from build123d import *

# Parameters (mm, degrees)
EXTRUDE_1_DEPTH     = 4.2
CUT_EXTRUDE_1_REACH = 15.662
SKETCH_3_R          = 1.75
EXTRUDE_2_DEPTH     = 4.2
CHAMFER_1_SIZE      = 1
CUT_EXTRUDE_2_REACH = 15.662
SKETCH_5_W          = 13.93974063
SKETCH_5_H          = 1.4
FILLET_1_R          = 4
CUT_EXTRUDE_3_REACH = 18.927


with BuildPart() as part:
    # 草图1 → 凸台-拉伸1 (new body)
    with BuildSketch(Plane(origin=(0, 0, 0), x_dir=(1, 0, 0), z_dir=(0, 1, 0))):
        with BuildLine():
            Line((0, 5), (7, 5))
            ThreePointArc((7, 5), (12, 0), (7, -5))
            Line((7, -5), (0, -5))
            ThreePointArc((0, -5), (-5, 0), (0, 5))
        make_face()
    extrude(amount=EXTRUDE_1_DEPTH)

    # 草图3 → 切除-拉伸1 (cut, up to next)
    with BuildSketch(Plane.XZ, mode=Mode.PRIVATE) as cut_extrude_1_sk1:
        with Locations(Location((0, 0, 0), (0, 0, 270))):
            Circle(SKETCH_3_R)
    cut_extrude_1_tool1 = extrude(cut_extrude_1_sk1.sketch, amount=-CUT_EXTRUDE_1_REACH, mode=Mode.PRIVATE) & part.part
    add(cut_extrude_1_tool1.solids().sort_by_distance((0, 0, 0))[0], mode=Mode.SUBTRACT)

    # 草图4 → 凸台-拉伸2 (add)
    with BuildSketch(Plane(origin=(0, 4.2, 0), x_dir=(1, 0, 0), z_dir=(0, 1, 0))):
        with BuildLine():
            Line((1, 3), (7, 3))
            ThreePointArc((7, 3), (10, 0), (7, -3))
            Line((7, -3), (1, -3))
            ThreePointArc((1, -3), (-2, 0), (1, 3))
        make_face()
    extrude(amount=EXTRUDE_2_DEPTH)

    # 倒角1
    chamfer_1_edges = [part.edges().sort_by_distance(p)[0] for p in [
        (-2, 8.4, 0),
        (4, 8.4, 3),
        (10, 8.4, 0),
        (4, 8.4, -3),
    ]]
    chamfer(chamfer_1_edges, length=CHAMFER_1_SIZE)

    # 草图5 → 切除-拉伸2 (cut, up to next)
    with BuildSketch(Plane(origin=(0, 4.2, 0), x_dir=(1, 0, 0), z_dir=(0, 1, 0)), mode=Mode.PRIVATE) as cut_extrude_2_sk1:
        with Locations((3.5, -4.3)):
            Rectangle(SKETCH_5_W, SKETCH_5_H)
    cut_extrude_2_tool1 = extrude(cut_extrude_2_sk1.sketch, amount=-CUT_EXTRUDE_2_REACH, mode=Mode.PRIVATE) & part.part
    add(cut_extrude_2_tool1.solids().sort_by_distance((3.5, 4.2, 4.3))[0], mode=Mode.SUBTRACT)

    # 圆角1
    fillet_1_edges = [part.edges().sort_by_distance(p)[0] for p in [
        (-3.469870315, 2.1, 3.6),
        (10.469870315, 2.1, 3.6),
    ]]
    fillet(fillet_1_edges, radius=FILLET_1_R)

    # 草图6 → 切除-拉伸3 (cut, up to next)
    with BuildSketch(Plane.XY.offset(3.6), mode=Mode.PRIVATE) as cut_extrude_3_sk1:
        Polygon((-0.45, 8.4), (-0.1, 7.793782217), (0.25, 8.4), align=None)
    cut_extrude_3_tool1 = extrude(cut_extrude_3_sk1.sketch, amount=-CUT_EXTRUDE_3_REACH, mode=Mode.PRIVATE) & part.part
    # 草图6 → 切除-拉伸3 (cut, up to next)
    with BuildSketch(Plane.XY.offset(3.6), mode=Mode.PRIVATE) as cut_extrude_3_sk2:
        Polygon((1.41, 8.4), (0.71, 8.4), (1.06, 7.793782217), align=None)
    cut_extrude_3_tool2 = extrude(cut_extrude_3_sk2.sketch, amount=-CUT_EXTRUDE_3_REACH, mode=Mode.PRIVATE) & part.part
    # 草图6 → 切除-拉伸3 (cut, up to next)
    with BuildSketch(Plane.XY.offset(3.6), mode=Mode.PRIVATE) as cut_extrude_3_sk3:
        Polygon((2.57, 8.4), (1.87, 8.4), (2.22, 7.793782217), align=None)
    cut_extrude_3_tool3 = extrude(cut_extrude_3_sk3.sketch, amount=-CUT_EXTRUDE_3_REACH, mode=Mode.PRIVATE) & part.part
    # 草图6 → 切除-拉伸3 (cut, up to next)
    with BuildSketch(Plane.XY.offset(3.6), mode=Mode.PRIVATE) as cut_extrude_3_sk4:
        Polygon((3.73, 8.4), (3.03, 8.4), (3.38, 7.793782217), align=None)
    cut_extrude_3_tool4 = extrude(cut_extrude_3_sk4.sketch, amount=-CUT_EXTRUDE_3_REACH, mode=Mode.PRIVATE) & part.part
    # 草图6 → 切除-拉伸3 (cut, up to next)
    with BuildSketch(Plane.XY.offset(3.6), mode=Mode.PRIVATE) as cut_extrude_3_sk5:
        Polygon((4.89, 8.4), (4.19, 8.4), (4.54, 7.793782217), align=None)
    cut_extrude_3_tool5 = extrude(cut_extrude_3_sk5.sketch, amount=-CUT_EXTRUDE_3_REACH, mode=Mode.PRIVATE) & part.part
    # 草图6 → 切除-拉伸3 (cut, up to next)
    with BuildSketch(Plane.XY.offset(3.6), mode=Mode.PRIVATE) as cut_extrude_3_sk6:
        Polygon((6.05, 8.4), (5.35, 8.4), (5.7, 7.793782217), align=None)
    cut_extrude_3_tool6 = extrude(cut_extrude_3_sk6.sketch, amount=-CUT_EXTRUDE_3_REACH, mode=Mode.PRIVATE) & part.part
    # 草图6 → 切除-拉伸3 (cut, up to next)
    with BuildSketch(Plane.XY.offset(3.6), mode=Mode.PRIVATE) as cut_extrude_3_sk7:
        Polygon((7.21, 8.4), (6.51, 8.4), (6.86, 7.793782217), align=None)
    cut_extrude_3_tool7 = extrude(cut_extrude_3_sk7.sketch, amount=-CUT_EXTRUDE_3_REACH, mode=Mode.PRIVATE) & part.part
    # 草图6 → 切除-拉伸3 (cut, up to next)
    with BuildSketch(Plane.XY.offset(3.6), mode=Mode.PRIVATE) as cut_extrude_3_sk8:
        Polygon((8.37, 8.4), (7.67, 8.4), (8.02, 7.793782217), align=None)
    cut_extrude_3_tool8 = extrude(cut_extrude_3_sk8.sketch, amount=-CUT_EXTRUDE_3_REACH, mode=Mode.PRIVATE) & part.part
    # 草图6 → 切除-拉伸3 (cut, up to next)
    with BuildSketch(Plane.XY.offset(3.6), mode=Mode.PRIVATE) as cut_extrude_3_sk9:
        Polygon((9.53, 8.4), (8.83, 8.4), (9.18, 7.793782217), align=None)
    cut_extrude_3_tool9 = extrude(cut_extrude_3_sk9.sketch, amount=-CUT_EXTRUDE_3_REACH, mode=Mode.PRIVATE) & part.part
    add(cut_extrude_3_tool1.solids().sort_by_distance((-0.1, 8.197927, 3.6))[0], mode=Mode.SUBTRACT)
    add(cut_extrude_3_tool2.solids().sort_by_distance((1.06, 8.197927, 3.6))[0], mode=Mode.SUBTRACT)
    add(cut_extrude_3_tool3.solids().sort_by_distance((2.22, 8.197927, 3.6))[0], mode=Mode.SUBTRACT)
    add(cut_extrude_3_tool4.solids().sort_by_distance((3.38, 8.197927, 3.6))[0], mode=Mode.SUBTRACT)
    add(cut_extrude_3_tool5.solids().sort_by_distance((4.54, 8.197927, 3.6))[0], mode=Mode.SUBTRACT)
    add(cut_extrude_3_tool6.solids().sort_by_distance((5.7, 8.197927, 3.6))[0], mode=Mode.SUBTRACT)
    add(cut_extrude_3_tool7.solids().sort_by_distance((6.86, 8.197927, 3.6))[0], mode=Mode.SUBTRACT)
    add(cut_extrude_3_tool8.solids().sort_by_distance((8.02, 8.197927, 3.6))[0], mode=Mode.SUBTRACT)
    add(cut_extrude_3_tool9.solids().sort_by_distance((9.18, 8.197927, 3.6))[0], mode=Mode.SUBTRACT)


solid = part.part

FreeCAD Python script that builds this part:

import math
import FreeCAD as App
import Part
import Sketcher
Q = App.Units.Quantity


def edges_at(feature, points):
    """Names of the edges that pass closest to the given points."""
    edges = feature.Shape.Edges
    near = lambda p: min(range(len(edges)), key=lambda i: edges[i].distToShape(Part.Vertex(*p))[0])
    return sorted({f"Edge{near(p) + 1}" for p in points})

doc = App.newDocument("Part")
body = doc.addObject("PartDesign::Body", "Body")

# Sketch on XZ plane
sketch1 = body.newObject("Sketcher::SketchObject", "Sketch")
sketch1.AttachmentSupport = (doc.getObject("XZ_Plane"), [""])
sketch1.MapMode = "FlatFace"
sketch1.addGeometry([
    Part.LineSegment(App.Vector(7, -5, 0), App.Vector(0, -5, 0)),
    Part.ArcOfCircle(Part.Circle(App.Vector(0, 0, 0), App.Vector(0, 0, 1), 5), math.radians(90), math.radians(270)),
    Part.LineSegment(App.Vector(0, 5, 0), App.Vector(7, 5, 0)),
    Part.ArcOfCircle(Part.Circle(App.Vector(7, 0, 0), App.Vector(0, 0, 1), 5), math.radians(-90), math.radians(90)),
], False)
sketch1.addConstraint([
    Sketcher.Constraint("Tangent", 0, 2, 1, 2),
    Sketcher.Constraint("Tangent", 1, 1, 2, 1),
    Sketcher.Constraint("Tangent", 2, 2, 3, 2),
    Sketcher.Constraint("Tangent", 3, 1, 0, 1),
    Sketcher.Constraint("Horizontal", 0),
    Sketcher.Constraint("Horizontal", 2),
    Sketcher.Constraint("Coincident", 1, 3, -1, 1),
    Sketcher.Constraint("Radius", 1, Q("5 mm")),
    Sketcher.Constraint("DistanceX", 0, 2, 0, 1, Q("7 mm")),
])
pad1 = body.newObject("PartDesign::Pad", "Pad")
pad1.Profile = sketch1
pad1.Length = 4.2
pad1.Reversed = True

# Sketch on XZ plane
sketch2 = body.newObject("Sketcher::SketchObject", "Sketch001")
sketch2.AttachmentSupport = (doc.getObject("XZ_Plane"), [""])
sketch2.MapMode = "FlatFace"
sketch2.addGeometry(Part.Circle(App.Vector(0, 0, 0), App.Vector(0, 0, 1), 1.8), False)
sketch2.addConstraint([
    Sketcher.Constraint("Coincident", 0, 3, -1, 1),
    Sketcher.Constraint("Diameter", 0, Q("3.5 mm")),
])
pocket1 = body.newObject("PartDesign::Pocket", "Pocket")
pocket1.Profile = sketch2
pocket1.Type = "UpToFirst"

# Sketch on XZ plane
sketch3 = body.newObject("Sketcher::SketchObject", "Sketch002")
sketch3.AttachmentSupport = (doc.getObject("XZ_Plane"), [""])
sketch3.MapMode = "FlatFace"
sketch3.AttachmentOffset = App.Placement(App.Vector(0, 0, -4.2), App.Rotation())
sketch3.addGeometry([
    Part.LineSegment(App.Vector(7, -3, 0), App.Vector(1, -3, 0)),
    Part.ArcOfCircle(Part.Circle(App.Vector(1, 0, 0), App.Vector(0, 0, 1), 3), math.radians(90), math.radians(270)),
    Part.LineSegment(App.Vector(1, 3, 0), App.Vector(7, 3, 0)),
    Part.ArcOfCircle(Part.Circle(App.Vector(7, 0, 0), App.Vector(0, 0, 1), 3), math.radians(-90), math.radians(90)),
], False)
sketch3.addConstraint([
    Sketcher.Constraint("Tangent", 0, 2, 1, 2),
    Sketcher.Constraint("Tangent", 1, 1, 2, 1),
    Sketcher.Constraint("Tangent", 2, 2, 3, 2),
    Sketcher.Constraint("Tangent", 3, 1, 0, 1),
    Sketcher.Constraint("Horizontal", 0),
    Sketcher.Constraint("Horizontal", 2),
    Sketcher.Constraint("PointOnObject", 1, 3, -1),
    Sketcher.Constraint("Radius", 1, Q("3 mm")),
    Sketcher.Constraint("DistanceX", 0, 2, 0, 1, Q("6 mm")),
    Sketcher.Constraint("DistanceX", -1, 1, 1, 3, Q("1 mm")),
])
pad2 = body.newObject("PartDesign::Pad", "Pad001")
pad2.Profile = sketch3
pad2.Length = 4.2
pad2.Reversed = True
doc.recompute()

chamfer = body.newObject("PartDesign::Chamfer", "Chamfer")
chamfer.Base = (pad2, edges_at(pad2, [
    (-2, 8.4, 0),
    (4, 8.4, 3),
    (10, 8.4, 0),
    (4, 8.4, -3),
]))
chamfer.Size = 1

# Sketch on XZ plane
sketch4 = body.newObject("Sketcher::SketchObject", "Sketch003")
sketch4.AttachmentSupport = (doc.getObject("XZ_Plane"), [""])
sketch4.MapMode = "FlatFace"
sketch4.AttachmentOffset = App.Placement(App.Vector(0, 0, -4.2), App.Rotation())
sketch4.addGeometry([
    Part.LineSegment(App.Vector(-3.5, 3.6, 0), App.Vector(-3.5, 5, 0)),
    Part.LineSegment(App.Vector(-3.5, 5, 0), App.Vector(10.5, 5, 0)),
    Part.LineSegment(App.Vector(10.5, 5, 0), App.Vector(10.5, 3.6, 0)),
    Part.LineSegment(App.Vector(10.5, 3.6, 0), App.Vector(-3.5, 3.6, 0)),
], False)
sketch4.addConstraint([
    Sketcher.Constraint("Coincident", 0, 2, 1, 1),
    Sketcher.Constraint("Coincident", 1, 2, 2, 1),
    Sketcher.Constraint("Coincident", 2, 2, 3, 1),
    Sketcher.Constraint("Coincident", 3, 2, 0, 1),
    Sketcher.Constraint("Vertical", 0),
    Sketcher.Constraint("Horizontal", 1),
    Sketcher.Constraint("Vertical", 2),
    Sketcher.Constraint("Horizontal", 3),
    Sketcher.Constraint("DistanceY", 0, 1, 0, 2, Q("1.4 mm")),
    Sketcher.Constraint("DistanceY", -1, 1, 0, 2, Q("5 mm")),
    Sketcher.Constraint("DistanceX", 1, 1, 1, 2, Q("13.939741 mm")),
    Sketcher.Constraint("DistanceX", 0, 2, -1, 1, Q("3.46987 mm")),
])
pocket2 = body.newObject("PartDesign::Pocket", "Pocket001")
pocket2.Profile = sketch4
pocket2.Type = "UpToFirst"
pocket2.Reversed = True
doc.recompute()

fillet = body.newObject("PartDesign::Fillet", "Fillet")
fillet.Base = (pocket2, edges_at(pocket2, [(-3.47, 2.1, 3.6), (10.47, 2.1, 3.6)]))
fillet.Radius = 4

# Sketch on XY plane
sketch5 = body.newObject("Sketcher::SketchObject", "Sketch004")
sketch5.AttachmentSupport = (doc.getObject("XY_Plane"), [""])
sketch5.MapMode = "FlatFace"
sketch5.AttachmentOffset = App.Placement(App.Vector(0, 0, 3.6), App.Rotation())
sketch5.addGeometry([
    Part.LineSegment(App.Vector(-0.5, 8.4, 0), App.Vector(-0.1, 7.8, 0)),
    Part.LineSegment(App.Vector(-0.1, 7.8, 0), App.Vector(0.2, 8.4, 0)),
    Part.LineSegment(App.Vector(0.2, 8.4, 0), App.Vector(-0.5, 8.4, 0)),
], False)
sketch5.addConstraint([
    Sketcher.Constraint("Coincident", 0, 2, 1, 1),
    Sketcher.Constraint("Coincident", 1, 2, 2, 1),
    Sketcher.Constraint("Coincident", 2, 2, 0, 1),
    Sketcher.Constraint("Horizontal", 2),
    Sketcher.Constraint("Equal", 0, 1),
    Sketcher.Constraint("Angle", 0, Q("-60 deg")),
    Sketcher.Constraint("DistanceX", 2, 2, 2, 1, Q("0.7 mm")),
    Sketcher.Constraint("DistanceX", 0, 2, -1, 1, Q("0.1 mm")),
    Sketcher.Constraint("DistanceY", -1, 1, 1, 2, Q("8.4 mm")),
])
pocket3 = body.newObject("PartDesign::Pocket", "Pocket002")
pocket3.Profile = sketch5
pocket3.Length = 5.962704

# Sketch on XY plane
sketch6 = body.newObject("Sketcher::SketchObject", "Sketch005")
sketch6.AttachmentSupport = (doc.getObject("XY_Plane"), [""])
sketch6.MapMode = "FlatFace"
sketch6.AttachmentOffset = App.Placement(App.Vector(0, 0, 3.6), App.Rotation())
sketch6.addGeometry([
    Part.LineSegment(App.Vector(1.4, 8.4, 0), App.Vector(0.7, 8.4, 0)),
    Part.LineSegment(App.Vector(0.7, 8.4, 0), App.Vector(1.1, 7.8, 0)),
    Part.LineSegment(App.Vector(1.1, 7.8, 0), App.Vector(1.4, 8.4, 0)),
], False)
sketch6.addConstraint([
    Sketcher.Constraint("Coincident", 0, 2, 1, 1),
    Sketcher.Constraint("Coincident", 1, 2, 2, 1),
    Sketcher.Constraint("Coincident", 2, 2, 0, 1),
    Sketcher.Constraint("Horizontal", 0),
    Sketcher.Constraint("Equal", 1, 2),
    Sketcher.Constraint("Angle", 1, Q("-60 deg")),
    Sketcher.Constraint("DistanceX", 0, 2, 0, 1, Q("0.7 mm")),
    Sketcher.Constraint("DistanceY", -1, 1, 0, 2, Q("8.4 mm")),
    Sketcher.Constraint("DistanceX", -1, 1, 0, 2, Q("0.71 mm")),
])
pocket4 = body.newObject("PartDesign::Pocket", "Pocket003")
pocket4.Profile = sketch6
pocket4.Length = 6.206218

# Sketch on XY plane
sketch7 = body.newObject("Sketcher::SketchObject", "Sketch006")
sketch7.AttachmentSupport = (doc.getObject("XY_Plane"), [""])
sketch7.MapMode = "FlatFace"
sketch7.AttachmentOffset = App.Placement(App.Vector(0, 0, 3.6), App.Rotation())
sketch7.addGeometry([
    Part.LineSegment(App.Vector(2.6, 8.4, 0), App.Vector(1.9, 8.4, 0)),
    Part.LineSegment(App.Vector(1.9, 8.4, 0), App.Vector(2.2, 7.8, 0)),
    Part.LineSegment(App.Vector(2.2, 7.8, 0), App.Vector(2.6, 8.4, 0)),
], False)
sketch7.addConstraint([
    Sketcher.Constraint("Coincident", 0, 2, 1, 1),
    Sketcher.Constraint("Coincident", 1, 2, 2, 1),
    Sketcher.Constraint("Coincident", 2, 2, 0, 1),
    Sketcher.Constraint("Horizontal", 0),
    Sketcher.Constraint("Equal", 1, 2),
    Sketcher.Constraint("Angle", 1, Q("-60 deg")),
    Sketcher.Constraint("DistanceX", 0, 2, 0, 1, Q("0.7 mm")),
    Sketcher.Constraint("DistanceY", -1, 1, 0, 2, Q("8.4 mm")),
    Sketcher.Constraint("DistanceX", -1, 1, 0, 2, Q("1.87 mm")),
])
pocket5 = body.newObject("PartDesign::Pocket", "Pocket004")
pocket5.Profile = sketch7
pocket5.Length = 6.206218

# Sketch on XY plane
sketch8 = body.newObject("Sketcher::SketchObject", "Sketch007")
sketch8.AttachmentSupport = (doc.getObject("XY_Plane"), [""])
sketch8.MapMode = "FlatFace"
sketch8.AttachmentOffset = App.Placement(App.Vector(0, 0, 3.6), App.Rotation())
sketch8.addGeometry([
    Part.LineSegment(App.Vector(3.7, 8.4, 0), App.Vector(3, 8.4, 0)),
    Part.LineSegment(App.Vector(3, 8.4, 0), App.Vector(3.4, 7.8, 0)),
    Part.LineSegment(App.Vector(3.4, 7.8, 0), App.Vector(3.7, 8.4, 0)),
], False)
sketch8.addConstraint([
    Sketcher.Constraint("Coincident", 0, 2, 1, 1),
    Sketcher.Constraint("Coincident", 1, 2, 2, 1),
    Sketcher.Constraint("Coincident", 2, 2, 0, 1),
    Sketcher.Constraint("Horizontal", 0),
    Sketcher.Constraint("Equal", 1, 2),
    Sketcher.Constraint("Angle", 1, Q("-60 deg")),
    Sketcher.Constraint("DistanceX", 0, 2, 0, 1, Q("0.7 mm")),
    Sketcher.Constraint("DistanceY", -1, 1, 0, 2, Q("8.4 mm")),
    Sketcher.Constraint("DistanceX", -1, 1, 0, 2, Q("3.03 mm")),
])
pocket6 = body.newObject("PartDesign::Pocket", "Pocket005")
pocket6.Profile = sketch8
pocket6.Length = 6.206218

# Sketch on XY plane
sketch9 = body.newObject("Sketcher::SketchObject", "Sketch008")
sketch9.AttachmentSupport = (doc.getObject("XY_Plane"), [""])
sketch9.MapMode = "FlatFace"
sketch9.AttachmentOffset = App.Placement(App.Vector(0, 0, 3.6), App.Rotation())
sketch9.addGeometry([
    Part.LineSegment(App.Vector(4.9, 8.4, 0), App.Vector(4.2, 8.4, 0)),
    Part.LineSegment(App.Vector(4.2, 8.4, 0), App.Vector(4.5, 7.8, 0)),
    Part.LineSegment(App.Vector(4.5, 7.8, 0), App.Vector(4.9, 8.4, 0)),
], False)
sketch9.addConstraint([
    Sketcher.Constraint("Coincident", 0, 2, 1, 1),
    Sketcher.Constraint("Coincident", 1, 2, 2, 1),
    Sketcher.Constraint("Coincident", 2, 2, 0, 1),
    Sketcher.Constraint("Horizontal", 0),
    Sketcher.Constraint("Equal", 1, 2),
    Sketcher.Constraint("Angle", 1, Q("-60 deg")),
    Sketcher.Constraint("DistanceX", 0, 2, 0, 1, Q("0.7 mm")),
    Sketcher.Constraint("DistanceY", -1, 1, 0, 2, Q("8.4 mm")),
    Sketcher.Constraint("DistanceX", -1, 1, 0, 2, Q("4.19 mm")),
])
pocket7 = body.newObject("PartDesign::Pocket", "Pocket006")
pocket7.Profile = sketch9
pocket7.Length = 6.206218

# Sketch on XY plane
sketch10 = body.newObject("Sketcher::SketchObject", "Sketch009")
sketch10.AttachmentSupport = (doc.getObject("XY_Plane"), [""])
sketch10.MapMode = "FlatFace"
sketch10.AttachmentOffset = App.Placement(App.Vector(0, 0, 3.6), App.Rotation())
sketch10.addGeometry([
    Part.LineSegment(App.Vector(6, 8.4, 0), App.Vector(5.3, 8.4, 0)),
    Part.LineSegment(App.Vector(5.3, 8.4, 0), App.Vector(5.7, 7.8, 0)),
    Part.LineSegment(App.Vector(5.7, 7.8, 0), App.Vector(6, 8.4, 0)),
], False)
sketch10.addConstraint([
    Sketcher.Constraint("Coincident", 0, 2, 1, 1),
    Sketcher.Constraint("Coincident", 1, 2, 2, 1),
    Sketcher.Constraint("Coincident", 2, 2, 0, 1),
    Sketcher.Constraint("Horizontal", 0),
    Sketcher.Constraint("Equal", 1, 2),
    Sketcher.Constraint("Angle", 1, Q("-60 deg")),
    Sketcher.Constraint("DistanceX", 0, 2, 0, 1, Q("0.7 mm")),
    Sketcher.Constraint("DistanceY", -1, 1, 0, 2, Q("8.4 mm")),
    Sketcher.Constraint("DistanceX", -1, 1, 1, 2, Q("5.7 mm")),
])
pocket8 = body.newObject("PartDesign::Pocket", "Pocket007")
pocket8.Profile = sketch10
pocket8.Length = 6.206218

# Sketch on XY plane
sketch11 = body.newObject("Sketcher::SketchObject", "Sketch010")
sketch11.AttachmentSupport = (doc.getObject("XY_Plane"), [""])
sketch11.MapMode = "FlatFace"
sketch11.AttachmentOffset = App.Placement(App.Vector(0, 0, 3.6), App.Rotation())
sketch11.addGeometry([
    Part.LineSegment(App.Vector(7.2, 8.4, 0), App.Vector(6.5, 8.4, 0)),
    Part.LineSegment(App.Vector(6.5, 8.4, 0), App.Vector(6.9, 7.8, 0)),
    Part.LineSegment(App.Vector(6.9, 7.8, 0), App.Vector(7.2, 8.4, 0)),
], False)
sketch11.addConstraint([
    Sketcher.Constraint("Coincident", 0, 2, 1, 1),
    Sketcher.Constraint("Coincident", 1, 2, 2, 1),
    Sketcher.Constraint("Coincident", 2, 2, 0, 1),
    Sketcher.Constraint("Horizontal", 0),
    Sketcher.Constraint("Equal", 1, 2),
    Sketcher.Constraint("Angle", 1, Q("-60 deg")),
    Sketcher.Constraint("DistanceX", 0, 2, 0, 1, Q("0.7 mm")),
    Sketcher.Constraint("DistanceY", -1, 1, 0, 2, Q("8.4 mm")),
    Sketcher.Constraint("DistanceX", -1, 1, 0, 2, Q("6.51 mm")),
])
pocket9 = body.newObject("PartDesign::Pocket", "Pocket008")
pocket9.Profile = sketch11
pocket9.Length = 6.206218

# Sketch on XY plane
sketch12 = body.newObject("Sketcher::SketchObject", "Sketch011")
sketch12.AttachmentSupport = (doc.getObject("XY_Plane"), [""])
sketch12.MapMode = "FlatFace"
sketch12.AttachmentOffset = App.Placement(App.Vector(0, 0, 3.6), App.Rotation())
sketch12.addGeometry([
    Part.LineSegment(App.Vector(8.4, 8.4, 0), App.Vector(7.7, 8.4, 0)),
    Part.LineSegment(App.Vector(7.7, 8.4, 0), App.Vector(8, 7.8, 0)),
    Part.LineSegment(App.Vector(8, 7.8, 0), App.Vector(8.4, 8.4, 0)),
], False)
sketch12.addConstraint([
    Sketcher.Constraint("Coincident", 0, 2, 1, 1),
    Sketcher.Constraint("Coincident", 1, 2, 2, 1),
    Sketcher.Constraint("Coincident", 2, 2, 0, 1),
    Sketcher.Constraint("Horizontal", 0),
    Sketcher.Constraint("Equal", 1, 2),
    Sketcher.Constraint("Angle", 1, Q("-60 deg")),
    Sketcher.Constraint("DistanceX", 0, 2, 0, 1, Q("0.7 mm")),
    Sketcher.Constraint("DistanceY", -1, 1, 0, 2, Q("8.4 mm")),
    Sketcher.Constraint("DistanceX", -1, 1, 0, 2, Q("7.67 mm")),
])
pocket10 = body.newObject("PartDesign::Pocket", "Pocket009")
pocket10.Profile = sketch12
pocket10.Type = "UpToFirst"

# Sketch on XY plane
sketch13 = body.newObject("Sketcher::SketchObject", "Sketch012")
sketch13.AttachmentSupport = (doc.getObject("XY_Plane"), [""])
sketch13.MapMode = "FlatFace"
sketch13.AttachmentOffset = App.Placement(App.Vector(0, 0, 3.6), App.Rotation())
sketch13.addGeometry([
    Part.LineSegment(App.Vector(9.5, 8.4, 0), App.Vector(8.8, 8.4, 0)),
    Part.LineSegment(App.Vector(8.8, 8.4, 0), App.Vector(9.2, 7.8, 0)),
    Part.LineSegment(App.Vector(9.2, 7.8, 0), App.Vector(9.5, 8.4, 0)),
], False)
sketch13.addConstraint([
    Sketcher.Constraint("Coincident", 0, 2, 1, 1),
    Sketcher.Constraint("Coincident", 1, 2, 2, 1),
    Sketcher.Constraint("Coincident", 2, 2, 0, 1),
    Sketcher.Constraint("Horizontal", 0),
    Sketcher.Constraint("Equal", 1, 2),
    Sketcher.Constraint("Angle", 1, Q("-60 deg")),
    Sketcher.Constraint("DistanceX", 0, 2, 0, 1, Q("0.7 mm")),
    Sketcher.Constraint("DistanceY", -1, 1, 0, 2, Q("8.4 mm")),
    Sketcher.Constraint("DistanceX", -1, 1, 0, 2, Q("8.83 mm")),
])
pocket11 = body.newObject("PartDesign::Pocket", "Pocket010")
pocket11.Profile = sketch13
pocket11.Type = "UpToFirst"

doc.recompute()
